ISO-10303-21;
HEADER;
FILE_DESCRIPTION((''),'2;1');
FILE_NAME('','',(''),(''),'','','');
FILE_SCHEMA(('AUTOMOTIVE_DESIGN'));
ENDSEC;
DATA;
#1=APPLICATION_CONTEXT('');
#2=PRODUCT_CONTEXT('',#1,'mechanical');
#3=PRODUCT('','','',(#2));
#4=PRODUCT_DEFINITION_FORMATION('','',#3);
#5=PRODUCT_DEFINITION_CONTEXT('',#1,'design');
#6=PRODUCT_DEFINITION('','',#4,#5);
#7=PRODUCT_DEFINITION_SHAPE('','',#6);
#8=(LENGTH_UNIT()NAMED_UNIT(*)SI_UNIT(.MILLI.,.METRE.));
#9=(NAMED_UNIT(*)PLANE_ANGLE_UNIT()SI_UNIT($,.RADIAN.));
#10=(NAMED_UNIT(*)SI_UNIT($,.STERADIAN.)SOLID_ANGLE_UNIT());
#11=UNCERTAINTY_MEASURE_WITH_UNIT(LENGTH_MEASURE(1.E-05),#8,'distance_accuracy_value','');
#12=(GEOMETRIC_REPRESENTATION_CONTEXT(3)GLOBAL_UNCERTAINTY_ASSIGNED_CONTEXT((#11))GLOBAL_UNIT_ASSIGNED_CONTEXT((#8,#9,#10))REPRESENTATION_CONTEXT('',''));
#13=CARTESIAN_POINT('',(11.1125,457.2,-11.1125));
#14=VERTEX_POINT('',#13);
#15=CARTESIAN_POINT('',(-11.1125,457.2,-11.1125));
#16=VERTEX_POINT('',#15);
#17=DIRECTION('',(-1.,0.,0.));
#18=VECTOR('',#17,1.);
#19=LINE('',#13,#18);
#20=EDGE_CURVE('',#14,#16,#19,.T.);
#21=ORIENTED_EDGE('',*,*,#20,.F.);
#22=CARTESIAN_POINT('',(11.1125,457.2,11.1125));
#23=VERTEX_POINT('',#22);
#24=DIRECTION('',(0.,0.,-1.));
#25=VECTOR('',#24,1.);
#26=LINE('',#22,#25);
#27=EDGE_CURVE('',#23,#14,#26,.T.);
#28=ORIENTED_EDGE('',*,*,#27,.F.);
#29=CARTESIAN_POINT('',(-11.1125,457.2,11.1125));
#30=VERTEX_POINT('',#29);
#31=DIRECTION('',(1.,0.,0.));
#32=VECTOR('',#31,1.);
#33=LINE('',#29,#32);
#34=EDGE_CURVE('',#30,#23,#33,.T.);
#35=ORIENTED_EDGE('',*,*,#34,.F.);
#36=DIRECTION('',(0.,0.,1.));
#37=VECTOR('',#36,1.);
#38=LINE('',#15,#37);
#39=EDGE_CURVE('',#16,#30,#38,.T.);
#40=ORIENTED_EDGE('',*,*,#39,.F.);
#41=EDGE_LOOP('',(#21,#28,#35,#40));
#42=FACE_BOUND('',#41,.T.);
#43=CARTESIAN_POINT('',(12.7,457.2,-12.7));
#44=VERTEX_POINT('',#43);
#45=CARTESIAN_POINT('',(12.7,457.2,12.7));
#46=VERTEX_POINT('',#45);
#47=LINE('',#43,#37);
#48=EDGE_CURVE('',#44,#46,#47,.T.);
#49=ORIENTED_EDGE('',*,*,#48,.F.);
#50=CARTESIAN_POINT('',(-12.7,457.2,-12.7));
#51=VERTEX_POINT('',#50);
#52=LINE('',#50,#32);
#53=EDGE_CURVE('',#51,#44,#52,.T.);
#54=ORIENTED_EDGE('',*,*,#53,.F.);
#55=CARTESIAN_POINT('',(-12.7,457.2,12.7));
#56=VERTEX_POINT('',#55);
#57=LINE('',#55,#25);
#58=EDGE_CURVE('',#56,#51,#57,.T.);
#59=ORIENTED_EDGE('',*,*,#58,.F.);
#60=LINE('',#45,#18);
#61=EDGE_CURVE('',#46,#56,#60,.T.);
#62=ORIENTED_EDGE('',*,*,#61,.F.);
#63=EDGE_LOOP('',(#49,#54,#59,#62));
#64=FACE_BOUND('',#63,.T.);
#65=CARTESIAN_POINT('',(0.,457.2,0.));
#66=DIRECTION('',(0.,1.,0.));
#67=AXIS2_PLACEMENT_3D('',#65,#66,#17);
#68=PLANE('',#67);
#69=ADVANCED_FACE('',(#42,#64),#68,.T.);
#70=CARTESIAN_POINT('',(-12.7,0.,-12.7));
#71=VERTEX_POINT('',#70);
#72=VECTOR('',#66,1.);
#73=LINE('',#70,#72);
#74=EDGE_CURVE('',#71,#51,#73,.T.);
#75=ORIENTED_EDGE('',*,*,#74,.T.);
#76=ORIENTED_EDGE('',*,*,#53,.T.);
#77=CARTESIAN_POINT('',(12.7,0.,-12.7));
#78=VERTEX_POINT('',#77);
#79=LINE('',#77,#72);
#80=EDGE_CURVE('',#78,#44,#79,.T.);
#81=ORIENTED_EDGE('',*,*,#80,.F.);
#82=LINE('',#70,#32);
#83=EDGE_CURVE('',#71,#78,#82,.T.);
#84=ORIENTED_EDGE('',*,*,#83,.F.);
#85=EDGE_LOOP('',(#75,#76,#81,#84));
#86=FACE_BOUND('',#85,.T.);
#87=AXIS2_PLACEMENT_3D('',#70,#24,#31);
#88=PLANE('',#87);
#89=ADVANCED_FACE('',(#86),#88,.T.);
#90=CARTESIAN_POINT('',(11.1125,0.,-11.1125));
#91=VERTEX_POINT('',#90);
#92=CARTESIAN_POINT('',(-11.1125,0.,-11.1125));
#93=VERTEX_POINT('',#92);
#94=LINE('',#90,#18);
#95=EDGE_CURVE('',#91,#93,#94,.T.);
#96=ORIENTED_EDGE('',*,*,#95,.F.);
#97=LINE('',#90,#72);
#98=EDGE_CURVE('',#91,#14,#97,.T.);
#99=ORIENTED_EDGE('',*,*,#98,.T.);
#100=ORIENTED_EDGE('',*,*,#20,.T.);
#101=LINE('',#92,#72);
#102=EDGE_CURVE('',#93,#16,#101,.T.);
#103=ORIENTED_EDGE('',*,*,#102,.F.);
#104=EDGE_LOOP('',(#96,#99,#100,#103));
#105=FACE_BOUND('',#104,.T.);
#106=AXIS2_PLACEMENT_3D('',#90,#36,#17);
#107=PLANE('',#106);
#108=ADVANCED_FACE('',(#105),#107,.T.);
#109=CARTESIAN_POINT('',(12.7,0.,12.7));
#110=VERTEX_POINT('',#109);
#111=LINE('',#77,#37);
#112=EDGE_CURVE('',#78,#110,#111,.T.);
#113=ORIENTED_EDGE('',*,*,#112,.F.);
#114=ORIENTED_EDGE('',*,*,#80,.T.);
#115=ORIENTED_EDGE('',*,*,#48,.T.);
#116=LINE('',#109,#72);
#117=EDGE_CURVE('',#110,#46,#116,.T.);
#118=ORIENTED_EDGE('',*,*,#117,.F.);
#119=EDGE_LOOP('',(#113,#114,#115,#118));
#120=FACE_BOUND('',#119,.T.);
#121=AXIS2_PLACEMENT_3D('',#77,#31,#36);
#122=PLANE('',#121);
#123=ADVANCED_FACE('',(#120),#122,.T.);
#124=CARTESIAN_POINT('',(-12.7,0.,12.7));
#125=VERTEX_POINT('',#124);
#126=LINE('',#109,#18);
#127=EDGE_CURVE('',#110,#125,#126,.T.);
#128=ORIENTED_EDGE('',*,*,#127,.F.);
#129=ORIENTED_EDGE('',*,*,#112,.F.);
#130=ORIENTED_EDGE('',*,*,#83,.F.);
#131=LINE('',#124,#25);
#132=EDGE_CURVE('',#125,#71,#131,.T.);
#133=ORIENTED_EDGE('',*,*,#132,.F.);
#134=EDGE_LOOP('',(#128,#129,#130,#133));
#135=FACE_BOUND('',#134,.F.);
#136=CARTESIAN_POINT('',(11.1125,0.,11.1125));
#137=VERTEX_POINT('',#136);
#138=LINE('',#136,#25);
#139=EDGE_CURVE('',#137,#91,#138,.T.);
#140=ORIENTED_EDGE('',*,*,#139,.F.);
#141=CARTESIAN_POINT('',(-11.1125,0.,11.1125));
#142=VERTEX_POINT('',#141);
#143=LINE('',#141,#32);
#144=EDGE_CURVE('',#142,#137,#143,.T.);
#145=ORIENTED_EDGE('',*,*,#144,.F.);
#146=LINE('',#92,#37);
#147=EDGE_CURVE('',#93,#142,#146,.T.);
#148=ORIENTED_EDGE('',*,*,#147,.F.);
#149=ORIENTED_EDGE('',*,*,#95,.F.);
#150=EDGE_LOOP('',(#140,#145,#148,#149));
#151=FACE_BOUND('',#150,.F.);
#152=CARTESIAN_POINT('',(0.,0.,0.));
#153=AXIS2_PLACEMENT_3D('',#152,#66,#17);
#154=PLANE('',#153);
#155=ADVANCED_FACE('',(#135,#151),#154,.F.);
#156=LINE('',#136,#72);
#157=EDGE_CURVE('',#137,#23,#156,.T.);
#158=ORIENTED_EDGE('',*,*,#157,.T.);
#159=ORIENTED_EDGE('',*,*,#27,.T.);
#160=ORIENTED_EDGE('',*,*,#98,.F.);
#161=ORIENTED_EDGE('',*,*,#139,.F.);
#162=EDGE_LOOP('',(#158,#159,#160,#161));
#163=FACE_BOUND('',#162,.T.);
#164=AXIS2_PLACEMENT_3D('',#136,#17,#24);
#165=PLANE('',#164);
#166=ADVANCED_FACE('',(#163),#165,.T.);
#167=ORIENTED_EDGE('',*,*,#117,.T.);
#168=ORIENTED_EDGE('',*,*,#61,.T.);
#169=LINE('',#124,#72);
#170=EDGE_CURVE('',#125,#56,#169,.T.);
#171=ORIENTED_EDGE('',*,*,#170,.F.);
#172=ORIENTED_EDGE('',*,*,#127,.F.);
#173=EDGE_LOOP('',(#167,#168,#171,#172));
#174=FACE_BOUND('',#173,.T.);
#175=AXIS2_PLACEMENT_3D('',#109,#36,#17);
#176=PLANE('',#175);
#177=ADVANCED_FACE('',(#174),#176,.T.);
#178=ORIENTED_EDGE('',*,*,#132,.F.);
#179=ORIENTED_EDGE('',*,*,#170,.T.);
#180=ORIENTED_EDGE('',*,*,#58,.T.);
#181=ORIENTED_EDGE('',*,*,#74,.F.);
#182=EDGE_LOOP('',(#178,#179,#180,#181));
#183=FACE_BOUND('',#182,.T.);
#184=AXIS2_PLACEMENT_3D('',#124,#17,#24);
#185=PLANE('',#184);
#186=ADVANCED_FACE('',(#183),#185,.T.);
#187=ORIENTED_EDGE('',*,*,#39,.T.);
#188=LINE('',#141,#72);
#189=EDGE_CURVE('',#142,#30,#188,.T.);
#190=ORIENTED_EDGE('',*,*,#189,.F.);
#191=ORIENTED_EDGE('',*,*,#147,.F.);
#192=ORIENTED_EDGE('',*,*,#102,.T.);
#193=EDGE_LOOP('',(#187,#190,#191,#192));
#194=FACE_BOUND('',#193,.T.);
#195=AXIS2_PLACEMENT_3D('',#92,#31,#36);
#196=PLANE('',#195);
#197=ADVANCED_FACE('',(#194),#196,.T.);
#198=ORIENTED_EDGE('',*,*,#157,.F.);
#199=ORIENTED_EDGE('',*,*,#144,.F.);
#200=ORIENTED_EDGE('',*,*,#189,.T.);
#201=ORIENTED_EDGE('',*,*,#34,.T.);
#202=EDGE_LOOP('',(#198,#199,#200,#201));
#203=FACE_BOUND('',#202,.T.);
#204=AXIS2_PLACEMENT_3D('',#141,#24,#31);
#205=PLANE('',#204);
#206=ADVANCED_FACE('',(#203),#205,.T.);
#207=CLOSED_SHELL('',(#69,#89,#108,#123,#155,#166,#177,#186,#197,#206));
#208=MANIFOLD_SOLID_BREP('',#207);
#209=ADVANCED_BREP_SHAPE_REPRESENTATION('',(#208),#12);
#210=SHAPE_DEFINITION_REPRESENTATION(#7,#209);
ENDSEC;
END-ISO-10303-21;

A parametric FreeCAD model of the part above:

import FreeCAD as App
import Part
import Sketcher

V = App.Vector
Q = App.Units.Quantity

doc = App.newDocument("Part")
body = doc.addObject("PartDesign::Body", "Body")

# Sketch on XZ plane
sketch1 = body.newObject("Sketcher::SketchObject", "Sketch")
sketch1.AttachmentSupport = (doc.getObject("XZ_Plane"), [""])
sketch1.MapMode = "FlatFace"
sketch1.addGeometry([
    Part.LineSegment(V(-13, 13, 0), V(13, 13, 0)),  # 0
    Part.LineSegment(V(13, 13, 0), V(13, -13, 0)),  # 1
    Part.LineSegment(V(13, -13, 0), V(-13, -13, 0)),  # 2
    Part.LineSegment(V(-13, -13, 0), V(-13, 13, 0)),  # 3
    Part.LineSegment(V(11, 11, 0), V(-11, 11, 0)),  # 4
    Part.LineSegment(V(-11, 11, 0), V(-11, -11, 0)),  # 5
    Part.LineSegment(V(-11, -11, 0), V(11, -11, 0)),  # 6
    Part.LineSegment(V(11, -11, 0), V(11, 11, 0)),  # 7
], False)
sketch1.addConstraint([
    Sketcher.Constraint("Coincident", 0, 2, 1, 1),
    Sketcher.Constraint("Coincident", 1, 2, 2, 1),
    Sketcher.Constraint("Coincident", 2, 2, 3, 1),
    Sketcher.Constraint("Coincident", 3, 2, 0, 1),
    Sketcher.Constraint("Coincident", 4, 2, 5, 1),
    Sketcher.Constraint("Coincident", 5, 2, 6, 1),
    Sketcher.Constraint("Coincident", 6, 2, 7, 1),
    Sketcher.Constraint("Coincident", 7, 2, 4, 1),
    Sketcher.Constraint("Horizontal", 0),
    Sketcher.Constraint("Vertical", 1),
    Sketcher.Constraint("Horizontal", 2),
    Sketcher.Constraint("Vertical", 3),
    Sketcher.Constraint("Horizontal", 4),
    Sketcher.Constraint("Vertical", 5),
    Sketcher.Constraint("Horizontal", 6),
    Sketcher.Constraint("Vertical", 7),
    Sketcher.Constraint("Symmetric", 0, 2, 2, 2, -1, 1),
    Sketcher.Constraint("Symmetric", 4, 2, 6, 2, -1, 1),
    Sketcher.Constraint("Equal", 2, 1),
    Sketcher.Constraint("Equal", 6, 5),
    Sketcher.Constraint("DistanceX", 0, 1, 0, 2, Q("1 in")),
    Sketcher.Constraint("DistanceX", 4, 2, 4, 1, Q("0.875 in")),
])
pad1 = body.newObject("PartDesign::Pad", "Pad")
pad1.Profile = sketch1
pad1.Length = Q("18 in")
pad1.Reversed = True

doc.recompute()
